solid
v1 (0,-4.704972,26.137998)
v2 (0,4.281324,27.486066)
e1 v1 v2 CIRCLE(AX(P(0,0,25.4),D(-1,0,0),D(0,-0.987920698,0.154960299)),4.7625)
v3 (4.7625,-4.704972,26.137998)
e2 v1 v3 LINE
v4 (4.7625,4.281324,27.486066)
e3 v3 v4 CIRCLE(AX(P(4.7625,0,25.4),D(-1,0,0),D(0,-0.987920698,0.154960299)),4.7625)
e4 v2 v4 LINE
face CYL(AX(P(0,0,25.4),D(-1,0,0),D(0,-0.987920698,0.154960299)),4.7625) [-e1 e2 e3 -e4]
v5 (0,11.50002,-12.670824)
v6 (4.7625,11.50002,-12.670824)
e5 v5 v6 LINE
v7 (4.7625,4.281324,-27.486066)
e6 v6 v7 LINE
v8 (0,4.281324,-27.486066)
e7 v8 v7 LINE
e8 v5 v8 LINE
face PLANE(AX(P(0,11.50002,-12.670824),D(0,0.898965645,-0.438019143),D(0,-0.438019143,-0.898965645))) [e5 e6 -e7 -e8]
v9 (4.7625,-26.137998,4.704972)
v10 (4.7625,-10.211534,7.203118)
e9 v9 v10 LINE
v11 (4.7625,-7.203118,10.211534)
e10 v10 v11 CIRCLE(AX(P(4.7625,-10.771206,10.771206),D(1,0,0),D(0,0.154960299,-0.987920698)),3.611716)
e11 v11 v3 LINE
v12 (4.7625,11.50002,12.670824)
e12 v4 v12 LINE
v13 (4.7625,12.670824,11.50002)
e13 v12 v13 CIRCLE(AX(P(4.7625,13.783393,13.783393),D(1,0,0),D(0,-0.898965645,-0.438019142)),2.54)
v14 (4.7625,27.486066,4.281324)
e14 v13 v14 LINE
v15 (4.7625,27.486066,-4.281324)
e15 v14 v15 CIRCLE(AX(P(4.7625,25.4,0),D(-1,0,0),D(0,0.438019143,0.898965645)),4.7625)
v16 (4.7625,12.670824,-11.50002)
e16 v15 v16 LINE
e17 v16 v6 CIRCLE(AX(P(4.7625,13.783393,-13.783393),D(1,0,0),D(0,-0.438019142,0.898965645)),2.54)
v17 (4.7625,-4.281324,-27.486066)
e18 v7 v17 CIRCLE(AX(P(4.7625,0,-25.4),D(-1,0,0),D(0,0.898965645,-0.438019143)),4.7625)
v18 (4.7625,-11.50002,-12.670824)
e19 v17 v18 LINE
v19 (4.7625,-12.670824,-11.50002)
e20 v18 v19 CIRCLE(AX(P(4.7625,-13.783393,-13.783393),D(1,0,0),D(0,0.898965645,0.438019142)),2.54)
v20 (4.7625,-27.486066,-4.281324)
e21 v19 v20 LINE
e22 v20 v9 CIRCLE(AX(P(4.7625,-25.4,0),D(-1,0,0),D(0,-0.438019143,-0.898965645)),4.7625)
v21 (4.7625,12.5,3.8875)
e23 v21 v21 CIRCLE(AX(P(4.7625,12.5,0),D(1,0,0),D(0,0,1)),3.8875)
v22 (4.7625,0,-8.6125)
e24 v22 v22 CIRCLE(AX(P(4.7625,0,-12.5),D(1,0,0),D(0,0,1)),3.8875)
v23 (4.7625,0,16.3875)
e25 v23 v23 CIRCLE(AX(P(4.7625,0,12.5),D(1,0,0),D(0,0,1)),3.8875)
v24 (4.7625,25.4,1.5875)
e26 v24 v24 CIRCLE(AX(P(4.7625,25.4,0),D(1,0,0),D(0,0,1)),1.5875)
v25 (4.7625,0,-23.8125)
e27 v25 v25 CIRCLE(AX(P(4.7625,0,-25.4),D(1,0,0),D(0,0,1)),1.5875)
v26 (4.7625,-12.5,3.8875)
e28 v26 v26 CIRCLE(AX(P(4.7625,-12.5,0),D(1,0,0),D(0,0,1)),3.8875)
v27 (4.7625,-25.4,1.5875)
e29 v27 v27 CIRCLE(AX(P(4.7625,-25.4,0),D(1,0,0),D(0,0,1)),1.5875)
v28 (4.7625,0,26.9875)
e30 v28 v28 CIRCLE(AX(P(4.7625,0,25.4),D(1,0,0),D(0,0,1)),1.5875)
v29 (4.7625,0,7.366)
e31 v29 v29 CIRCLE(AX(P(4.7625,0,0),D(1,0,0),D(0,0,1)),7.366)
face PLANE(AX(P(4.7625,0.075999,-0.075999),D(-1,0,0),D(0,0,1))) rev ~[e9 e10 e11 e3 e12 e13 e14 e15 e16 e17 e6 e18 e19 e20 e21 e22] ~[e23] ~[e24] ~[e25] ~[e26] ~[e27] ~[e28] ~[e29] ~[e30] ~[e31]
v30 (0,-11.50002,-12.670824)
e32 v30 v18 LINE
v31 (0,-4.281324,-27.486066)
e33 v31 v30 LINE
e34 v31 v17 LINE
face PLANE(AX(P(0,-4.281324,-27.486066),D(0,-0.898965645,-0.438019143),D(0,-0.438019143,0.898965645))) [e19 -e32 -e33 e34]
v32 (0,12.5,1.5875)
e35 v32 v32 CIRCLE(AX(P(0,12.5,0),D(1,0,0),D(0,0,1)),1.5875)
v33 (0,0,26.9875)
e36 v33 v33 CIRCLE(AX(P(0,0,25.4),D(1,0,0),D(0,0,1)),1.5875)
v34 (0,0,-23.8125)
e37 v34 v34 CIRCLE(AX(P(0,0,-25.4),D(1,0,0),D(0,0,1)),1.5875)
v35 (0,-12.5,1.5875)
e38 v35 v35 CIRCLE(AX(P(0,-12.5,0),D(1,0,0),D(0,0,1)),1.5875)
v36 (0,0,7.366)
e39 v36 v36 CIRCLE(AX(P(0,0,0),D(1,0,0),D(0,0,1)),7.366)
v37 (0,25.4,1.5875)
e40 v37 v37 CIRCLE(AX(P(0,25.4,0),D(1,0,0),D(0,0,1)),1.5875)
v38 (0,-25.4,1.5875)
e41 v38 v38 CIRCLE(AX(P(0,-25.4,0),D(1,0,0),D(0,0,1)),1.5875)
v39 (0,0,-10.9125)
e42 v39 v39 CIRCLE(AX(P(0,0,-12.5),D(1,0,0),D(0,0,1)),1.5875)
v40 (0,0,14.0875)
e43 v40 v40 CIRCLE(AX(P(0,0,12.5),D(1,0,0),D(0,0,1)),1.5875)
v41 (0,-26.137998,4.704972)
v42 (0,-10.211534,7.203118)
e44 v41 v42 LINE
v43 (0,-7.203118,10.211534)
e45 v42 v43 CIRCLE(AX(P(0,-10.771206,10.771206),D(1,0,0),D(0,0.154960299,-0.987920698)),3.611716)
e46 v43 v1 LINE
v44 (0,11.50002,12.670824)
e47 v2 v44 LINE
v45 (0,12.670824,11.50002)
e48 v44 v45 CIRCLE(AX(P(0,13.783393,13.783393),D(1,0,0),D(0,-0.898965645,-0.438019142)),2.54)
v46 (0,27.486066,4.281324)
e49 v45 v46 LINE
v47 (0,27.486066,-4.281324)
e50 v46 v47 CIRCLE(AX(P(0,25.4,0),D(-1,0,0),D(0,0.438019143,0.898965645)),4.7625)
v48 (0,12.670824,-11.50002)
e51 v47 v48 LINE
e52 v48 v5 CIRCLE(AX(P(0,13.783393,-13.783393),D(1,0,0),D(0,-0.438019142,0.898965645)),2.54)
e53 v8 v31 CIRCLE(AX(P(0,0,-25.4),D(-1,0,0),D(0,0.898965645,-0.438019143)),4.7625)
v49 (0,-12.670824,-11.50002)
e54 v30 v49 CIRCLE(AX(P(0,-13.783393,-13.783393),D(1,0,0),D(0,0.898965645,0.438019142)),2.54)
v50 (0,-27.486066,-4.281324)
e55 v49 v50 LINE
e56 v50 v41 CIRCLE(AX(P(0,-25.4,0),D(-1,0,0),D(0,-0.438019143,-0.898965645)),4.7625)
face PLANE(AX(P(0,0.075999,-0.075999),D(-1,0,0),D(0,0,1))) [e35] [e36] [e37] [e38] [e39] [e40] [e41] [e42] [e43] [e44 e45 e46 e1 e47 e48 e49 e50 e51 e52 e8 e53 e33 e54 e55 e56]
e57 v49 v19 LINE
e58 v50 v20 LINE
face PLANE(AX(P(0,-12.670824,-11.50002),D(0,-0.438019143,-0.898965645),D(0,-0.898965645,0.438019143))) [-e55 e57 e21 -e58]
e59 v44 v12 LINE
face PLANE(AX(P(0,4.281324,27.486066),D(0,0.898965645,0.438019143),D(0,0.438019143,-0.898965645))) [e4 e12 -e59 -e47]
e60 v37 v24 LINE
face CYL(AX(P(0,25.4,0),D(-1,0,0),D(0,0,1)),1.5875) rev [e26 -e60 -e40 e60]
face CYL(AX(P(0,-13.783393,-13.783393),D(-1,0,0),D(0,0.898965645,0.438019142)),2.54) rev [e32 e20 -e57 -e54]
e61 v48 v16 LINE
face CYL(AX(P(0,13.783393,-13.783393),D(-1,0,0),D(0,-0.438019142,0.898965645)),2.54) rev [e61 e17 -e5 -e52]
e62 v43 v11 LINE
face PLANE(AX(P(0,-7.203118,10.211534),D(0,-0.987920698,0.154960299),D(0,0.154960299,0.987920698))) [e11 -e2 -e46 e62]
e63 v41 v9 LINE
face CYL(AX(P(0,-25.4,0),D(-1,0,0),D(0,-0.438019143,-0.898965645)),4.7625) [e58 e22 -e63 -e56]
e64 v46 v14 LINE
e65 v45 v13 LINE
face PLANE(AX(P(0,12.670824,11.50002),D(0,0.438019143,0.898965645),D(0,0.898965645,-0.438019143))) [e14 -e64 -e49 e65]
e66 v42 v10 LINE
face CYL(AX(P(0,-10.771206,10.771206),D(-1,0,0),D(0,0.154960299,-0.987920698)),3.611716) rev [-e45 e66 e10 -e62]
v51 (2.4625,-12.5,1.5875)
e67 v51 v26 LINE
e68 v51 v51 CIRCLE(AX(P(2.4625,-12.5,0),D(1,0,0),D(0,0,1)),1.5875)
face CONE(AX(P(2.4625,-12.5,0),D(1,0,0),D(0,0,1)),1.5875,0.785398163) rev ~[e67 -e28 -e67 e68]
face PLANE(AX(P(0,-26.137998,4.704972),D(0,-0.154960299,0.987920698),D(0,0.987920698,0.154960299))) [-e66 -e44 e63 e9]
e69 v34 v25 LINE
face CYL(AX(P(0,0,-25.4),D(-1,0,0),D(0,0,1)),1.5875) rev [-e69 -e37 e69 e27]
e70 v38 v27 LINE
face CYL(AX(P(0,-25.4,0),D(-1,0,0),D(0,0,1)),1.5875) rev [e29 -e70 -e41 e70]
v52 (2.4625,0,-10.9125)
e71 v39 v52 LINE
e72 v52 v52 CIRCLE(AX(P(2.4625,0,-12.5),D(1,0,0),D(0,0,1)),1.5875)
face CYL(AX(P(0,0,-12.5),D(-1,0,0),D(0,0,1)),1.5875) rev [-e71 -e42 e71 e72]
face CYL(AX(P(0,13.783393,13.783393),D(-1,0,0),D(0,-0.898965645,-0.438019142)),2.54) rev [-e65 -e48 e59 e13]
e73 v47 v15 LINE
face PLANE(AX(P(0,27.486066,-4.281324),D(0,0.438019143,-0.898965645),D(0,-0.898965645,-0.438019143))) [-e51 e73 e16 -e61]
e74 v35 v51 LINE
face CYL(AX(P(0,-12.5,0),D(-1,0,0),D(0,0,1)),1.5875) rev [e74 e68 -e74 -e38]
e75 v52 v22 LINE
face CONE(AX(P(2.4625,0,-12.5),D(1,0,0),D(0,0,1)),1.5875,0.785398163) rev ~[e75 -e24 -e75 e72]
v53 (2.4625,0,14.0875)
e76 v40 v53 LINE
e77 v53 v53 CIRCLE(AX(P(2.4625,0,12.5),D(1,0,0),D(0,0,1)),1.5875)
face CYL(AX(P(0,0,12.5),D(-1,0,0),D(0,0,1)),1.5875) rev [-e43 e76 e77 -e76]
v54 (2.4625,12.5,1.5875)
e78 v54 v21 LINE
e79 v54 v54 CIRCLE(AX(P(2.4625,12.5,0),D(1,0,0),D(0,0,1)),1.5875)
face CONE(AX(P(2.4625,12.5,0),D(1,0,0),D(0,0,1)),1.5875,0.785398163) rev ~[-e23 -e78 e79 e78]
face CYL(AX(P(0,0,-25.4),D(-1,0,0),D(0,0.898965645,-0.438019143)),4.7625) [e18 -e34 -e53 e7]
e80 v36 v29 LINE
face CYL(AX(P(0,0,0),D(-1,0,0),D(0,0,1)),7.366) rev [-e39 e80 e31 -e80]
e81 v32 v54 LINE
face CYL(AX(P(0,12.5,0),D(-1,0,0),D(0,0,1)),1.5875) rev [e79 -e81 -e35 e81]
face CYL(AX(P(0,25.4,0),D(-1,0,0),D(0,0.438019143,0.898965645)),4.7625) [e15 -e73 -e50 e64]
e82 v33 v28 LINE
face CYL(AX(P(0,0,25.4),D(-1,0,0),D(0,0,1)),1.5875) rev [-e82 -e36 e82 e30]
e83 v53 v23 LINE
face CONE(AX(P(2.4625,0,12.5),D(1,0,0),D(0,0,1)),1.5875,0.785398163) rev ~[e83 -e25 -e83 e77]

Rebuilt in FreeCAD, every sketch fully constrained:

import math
import FreeCAD as App
import Part
import Sketcher
from FreeCAD import Vector
Q = App.Units.Quantity


def edges_at(feature, points):
    """Names of the edges that pass closest to the given points."""
    edges = feature.Shape.Edges
    near = lambda p: min(range(len(edges)), key=lambda i: edges[i].distToShape(Part.Vertex(*p))[0])
    return sorted({f"Edge{near(p) + 1}" for p in points})

doc = App.newDocument("Part")
body = doc.addObject("PartDesign::Body", "Body")

# Sketch on YZ plane
sketch1 = body.newObject("Sketcher::SketchObject", "Sketch")
sketch1.AttachmentSupport = (doc.getObject("YZ_Plane"), [""])
sketch1.MapMode = "FlatFace"
sketch1.addGeometry([
    Part.LineSegment(Vector(12.7, -11.5, 0), Vector(27.5, -4.3, 0)),  # 0
    Part.ArcOfCircle(Part.Circle(Vector(25.4, 0, 0), Vector(0, 0, 1), 4.8), math.radians(-64), math.radians(64)),  # 1
    Part.LineSegment(Vector(27.5, 4.3, 0), Vector(12.7, 11.5, 0)),  # 2
    Part.ArcOfCircle(Part.Circle(Vector(13.8, 13.8, 0), Vector(0, 0, 1), 2.5), math.radians(-154), math.radians(-116)),  # 3
    Part.LineSegment(Vector(11.5, 12.7, 0), Vector(4.3, 27.5, 0)),  # 4
    Part.ArcOfCircle(Part.Circle(Vector(0, 25.4, 0), Vector(0, 0, 1), 4.8), math.radians(26), math.radians(171)),  # 5
    Part.LineSegment(Vector(-4.7, 26.1, 0), Vector(-7.2, 10.2, 0)),  # 6
    Part.ArcOfCircle(Part.Circle(Vector(-10.8, 10.8, 0), Vector(0, 0, 1), 3.6), math.radians(-81), math.radians(-9)),  # 7
    Part.LineSegment(Vector(-10.2, 7.2, 0), Vector(-26.1, 4.7, 0)),  # 8
    Part.ArcOfCircle(Part.Circle(Vector(-25.4, 0, 0), Vector(0, 0, 1), 4.8), math.radians(99), math.radians(244)),  # 9
    Part.LineSegment(Vector(-27.5, -4.3, 0), Vector(-12.7, -11.5, 0)),  # 10
    Part.ArcOfCircle(Part.Circle(Vector(-13.8, -13.8, 0), Vector(0, 0, 1), 2.5), math.radians(26), math.radians(64)),  # 11
    Part.LineSegment(Vector(-11.5, -12.7, 0), Vector(-4.3, -27.5, 0)),  # 12
    Part.ArcOfCircle(Part.Circle(Vector(0, -25.4, 0), Vector(0, 0, 1), 4.8), math.radians(-154), math.radians(-26)),  # 13
    Part.LineSegment(Vector(4.3, -27.5, 0), Vector(11.5, -12.7, 0)),  # 14
    Part.ArcOfCircle(Part.Circle(Vector(13.8, -13.8, 0), Vector(0, 0, 1), 2.5), math.radians(116), math.radians(154)),  # 15
    Part.Circle(Vector(-25.4, 0, 0), Vector(0, 0, 1), 1.6),  # 16
    Part.Circle(Vector(-12.5, 0, 0), Vector(0, 0, 1), 1.6),  # 17
    Part.Circle(Vector(0, -25.4, 0), Vector(0, 0, 1), 1.6),  # 18
    Part.Circle(Vector(0, -12.5, 0), Vector(0, 0, 1), 1.6),  # 19
    Part.Circle(Vector(0, 0, 0), Vector(0, 0, 1), 7.4),  # 20
    Part.Circle(Vector(0, 12.5, 0), Vector(0, 0, 1), 1.6),  # 21
    Part.Circle(Vector(12.5, 0, 0), Vector(0, 0, 1), 1.6),  # 22
    Part.Circle(Vector(0, 25.4, 0), Vector(0, 0, 1), 1.6),  # 23
    Part.Circle(Vector(25.4, 0, 0), Vector(0, 0, 1), 1.6),  # 24
], False)
sketch1.addConstraint([
    Sketcher.Constraint("Tangent", 0, 2, 1, 1),
    Sketcher.Constraint("Tangent", 1, 2, 2, 1),
    Sketcher.Constraint("Tangent", 2, 2, 3, 2),
    Sketcher.Constraint("Tangent", 3, 1, 4, 1),
    Sketcher.Constraint("Tangent", 4, 2, 5, 1),
    Sketcher.Constraint("Tangent", 5, 2, 6, 1),
    Sketcher.Constraint("Tangent", 6, 2, 7, 2),
    Sketcher.Constraint("Tangent", 7, 1, 8, 1),
    Sketcher.Constraint("Tangent", 8, 2, 9, 1),
    Sketcher.Constraint("Tangent", 9, 2, 10, 1),
    Sketcher.Constraint("Tangent", 10, 2, 11, 2),
    Sketcher.Constraint("Tangent", 11, 1, 12, 1),
    Sketcher.Constraint("Tangent", 12, 2, 13, 1),
    Sketcher.Constraint("Tangent", 13, 2, 14, 1),
    Sketcher.Constraint("Tangent", 14, 2, 15, 2),
    Sketcher.Constraint("Tangent", 15, 1, 0, 1),
    Sketcher.Constraint("Coincident", 20, 3, -1, 1),
    Sketcher.Constraint("Coincident", 16, 3, 9, 3),
    Sketcher.Constraint("Coincident", 18, 3, 13, 3),
    Sketcher.Constraint("Coincident", 23, 3, 5, 3),
    Sketcher.Constraint("Coincident", 24, 3, 1, 3),
    Sketcher.Constraint("Equal", 1, 5),
    Sketcher.Constraint("Equal", 5, 9),
    Sketcher.Constraint("Equal", 3, 11),
    Sketcher.Constraint("Equal", 9, 13),
    Sketcher.Constraint("Equal", 11, 15),
    Sketcher.Constraint("Equal", 16, 17),
    Sketcher.Constraint("Equal", 17, 18),
    Sketcher.Constraint("Equal", 18, 19),
    Sketcher.Constraint("Equal", 19, 21),
    Sketcher.Constraint("Equal", 21, 22),
    Sketcher.Constraint("Equal", 22, 23),
    Sketcher.Constraint("Equal", 23, 24),
    Sketcher.Constraint("Symmetric", 1, 3, 9, 3, -1, 1),
    Sketcher.Constraint("Symmetric", 3, 3, 11, 3, -1, 1),
    Sketcher.Constraint("Symmetric", 5, 3, 13, 3, -1, 1),
    Sketcher.Constraint("Symmetric", 19, 3, 21, 3, -1, 1),
    Sketcher.Constraint("Symmetric", 17, 3, 22, 3, -1, 1),
    Sketcher.Constraint("Symmetric", 11, 3, 15, 3, -2),
    Sketcher.Constraint("PointOnObject", 1, 3, -1),
    Sketcher.Constraint("PointOnObject", 5, 3, -2),
    Sketcher.Constraint("PointOnObject", 17, 3, -1),
    Sketcher.Constraint("PointOnObject", 19, 3, -2),
    Sketcher.Constraint("Perpendicular", 0, 4),
    Sketcher.Constraint("Equal", 2, 4),
    Sketcher.Constraint("Equal", 6, 8),
    Sketcher.Constraint("Radius", 3, Q("0.1 in")),
    Sketcher.Constraint("Diameter", 20, Q("0.58 in")),
    Sketcher.Constraint("Diameter", 16, Q("0.125 in")),
    Sketcher.Constraint("DistanceX", -1, 1, 1, 3, Q("1 in")),
    Sketcher.Constraint("Radius", 1, Q("0.1875 in")),
    Sketcher.Constraint("Radius", 7, Q("3.611716 mm")),
    Sketcher.Constraint("DistanceX", 17, 3, -1, 1, Q("12.5 mm")),
    Sketcher.Constraint("DistanceY", 19, 3, -1, 1, Q("12.5 mm")),
    Sketcher.Constraint("DistanceY", -1, 1, 5, 2, Q("26.137998 mm")),
    Sketcher.Constraint("DistanceX", 7, 3, 3, 3, Q("24.554599 mm")),
])
pad1 = body.newObject("PartDesign::Pad", "Pad")
pad1.Profile = sketch1
pad1.Length = Q("0.1875 in")
doc.recompute()

chamfer = body.newObject("PartDesign::Chamfer", "Chamfer")
chamfer.Base = (pad1, edges_at(pad1, [
    (4.763, 0, -14.088),
    (4.763, 12.5, -1.587),
    (4.763, 0, 10.912),
    (4.763, -12.5, -1.587),
]))
chamfer.Size = 2.3

doc.recompute()
